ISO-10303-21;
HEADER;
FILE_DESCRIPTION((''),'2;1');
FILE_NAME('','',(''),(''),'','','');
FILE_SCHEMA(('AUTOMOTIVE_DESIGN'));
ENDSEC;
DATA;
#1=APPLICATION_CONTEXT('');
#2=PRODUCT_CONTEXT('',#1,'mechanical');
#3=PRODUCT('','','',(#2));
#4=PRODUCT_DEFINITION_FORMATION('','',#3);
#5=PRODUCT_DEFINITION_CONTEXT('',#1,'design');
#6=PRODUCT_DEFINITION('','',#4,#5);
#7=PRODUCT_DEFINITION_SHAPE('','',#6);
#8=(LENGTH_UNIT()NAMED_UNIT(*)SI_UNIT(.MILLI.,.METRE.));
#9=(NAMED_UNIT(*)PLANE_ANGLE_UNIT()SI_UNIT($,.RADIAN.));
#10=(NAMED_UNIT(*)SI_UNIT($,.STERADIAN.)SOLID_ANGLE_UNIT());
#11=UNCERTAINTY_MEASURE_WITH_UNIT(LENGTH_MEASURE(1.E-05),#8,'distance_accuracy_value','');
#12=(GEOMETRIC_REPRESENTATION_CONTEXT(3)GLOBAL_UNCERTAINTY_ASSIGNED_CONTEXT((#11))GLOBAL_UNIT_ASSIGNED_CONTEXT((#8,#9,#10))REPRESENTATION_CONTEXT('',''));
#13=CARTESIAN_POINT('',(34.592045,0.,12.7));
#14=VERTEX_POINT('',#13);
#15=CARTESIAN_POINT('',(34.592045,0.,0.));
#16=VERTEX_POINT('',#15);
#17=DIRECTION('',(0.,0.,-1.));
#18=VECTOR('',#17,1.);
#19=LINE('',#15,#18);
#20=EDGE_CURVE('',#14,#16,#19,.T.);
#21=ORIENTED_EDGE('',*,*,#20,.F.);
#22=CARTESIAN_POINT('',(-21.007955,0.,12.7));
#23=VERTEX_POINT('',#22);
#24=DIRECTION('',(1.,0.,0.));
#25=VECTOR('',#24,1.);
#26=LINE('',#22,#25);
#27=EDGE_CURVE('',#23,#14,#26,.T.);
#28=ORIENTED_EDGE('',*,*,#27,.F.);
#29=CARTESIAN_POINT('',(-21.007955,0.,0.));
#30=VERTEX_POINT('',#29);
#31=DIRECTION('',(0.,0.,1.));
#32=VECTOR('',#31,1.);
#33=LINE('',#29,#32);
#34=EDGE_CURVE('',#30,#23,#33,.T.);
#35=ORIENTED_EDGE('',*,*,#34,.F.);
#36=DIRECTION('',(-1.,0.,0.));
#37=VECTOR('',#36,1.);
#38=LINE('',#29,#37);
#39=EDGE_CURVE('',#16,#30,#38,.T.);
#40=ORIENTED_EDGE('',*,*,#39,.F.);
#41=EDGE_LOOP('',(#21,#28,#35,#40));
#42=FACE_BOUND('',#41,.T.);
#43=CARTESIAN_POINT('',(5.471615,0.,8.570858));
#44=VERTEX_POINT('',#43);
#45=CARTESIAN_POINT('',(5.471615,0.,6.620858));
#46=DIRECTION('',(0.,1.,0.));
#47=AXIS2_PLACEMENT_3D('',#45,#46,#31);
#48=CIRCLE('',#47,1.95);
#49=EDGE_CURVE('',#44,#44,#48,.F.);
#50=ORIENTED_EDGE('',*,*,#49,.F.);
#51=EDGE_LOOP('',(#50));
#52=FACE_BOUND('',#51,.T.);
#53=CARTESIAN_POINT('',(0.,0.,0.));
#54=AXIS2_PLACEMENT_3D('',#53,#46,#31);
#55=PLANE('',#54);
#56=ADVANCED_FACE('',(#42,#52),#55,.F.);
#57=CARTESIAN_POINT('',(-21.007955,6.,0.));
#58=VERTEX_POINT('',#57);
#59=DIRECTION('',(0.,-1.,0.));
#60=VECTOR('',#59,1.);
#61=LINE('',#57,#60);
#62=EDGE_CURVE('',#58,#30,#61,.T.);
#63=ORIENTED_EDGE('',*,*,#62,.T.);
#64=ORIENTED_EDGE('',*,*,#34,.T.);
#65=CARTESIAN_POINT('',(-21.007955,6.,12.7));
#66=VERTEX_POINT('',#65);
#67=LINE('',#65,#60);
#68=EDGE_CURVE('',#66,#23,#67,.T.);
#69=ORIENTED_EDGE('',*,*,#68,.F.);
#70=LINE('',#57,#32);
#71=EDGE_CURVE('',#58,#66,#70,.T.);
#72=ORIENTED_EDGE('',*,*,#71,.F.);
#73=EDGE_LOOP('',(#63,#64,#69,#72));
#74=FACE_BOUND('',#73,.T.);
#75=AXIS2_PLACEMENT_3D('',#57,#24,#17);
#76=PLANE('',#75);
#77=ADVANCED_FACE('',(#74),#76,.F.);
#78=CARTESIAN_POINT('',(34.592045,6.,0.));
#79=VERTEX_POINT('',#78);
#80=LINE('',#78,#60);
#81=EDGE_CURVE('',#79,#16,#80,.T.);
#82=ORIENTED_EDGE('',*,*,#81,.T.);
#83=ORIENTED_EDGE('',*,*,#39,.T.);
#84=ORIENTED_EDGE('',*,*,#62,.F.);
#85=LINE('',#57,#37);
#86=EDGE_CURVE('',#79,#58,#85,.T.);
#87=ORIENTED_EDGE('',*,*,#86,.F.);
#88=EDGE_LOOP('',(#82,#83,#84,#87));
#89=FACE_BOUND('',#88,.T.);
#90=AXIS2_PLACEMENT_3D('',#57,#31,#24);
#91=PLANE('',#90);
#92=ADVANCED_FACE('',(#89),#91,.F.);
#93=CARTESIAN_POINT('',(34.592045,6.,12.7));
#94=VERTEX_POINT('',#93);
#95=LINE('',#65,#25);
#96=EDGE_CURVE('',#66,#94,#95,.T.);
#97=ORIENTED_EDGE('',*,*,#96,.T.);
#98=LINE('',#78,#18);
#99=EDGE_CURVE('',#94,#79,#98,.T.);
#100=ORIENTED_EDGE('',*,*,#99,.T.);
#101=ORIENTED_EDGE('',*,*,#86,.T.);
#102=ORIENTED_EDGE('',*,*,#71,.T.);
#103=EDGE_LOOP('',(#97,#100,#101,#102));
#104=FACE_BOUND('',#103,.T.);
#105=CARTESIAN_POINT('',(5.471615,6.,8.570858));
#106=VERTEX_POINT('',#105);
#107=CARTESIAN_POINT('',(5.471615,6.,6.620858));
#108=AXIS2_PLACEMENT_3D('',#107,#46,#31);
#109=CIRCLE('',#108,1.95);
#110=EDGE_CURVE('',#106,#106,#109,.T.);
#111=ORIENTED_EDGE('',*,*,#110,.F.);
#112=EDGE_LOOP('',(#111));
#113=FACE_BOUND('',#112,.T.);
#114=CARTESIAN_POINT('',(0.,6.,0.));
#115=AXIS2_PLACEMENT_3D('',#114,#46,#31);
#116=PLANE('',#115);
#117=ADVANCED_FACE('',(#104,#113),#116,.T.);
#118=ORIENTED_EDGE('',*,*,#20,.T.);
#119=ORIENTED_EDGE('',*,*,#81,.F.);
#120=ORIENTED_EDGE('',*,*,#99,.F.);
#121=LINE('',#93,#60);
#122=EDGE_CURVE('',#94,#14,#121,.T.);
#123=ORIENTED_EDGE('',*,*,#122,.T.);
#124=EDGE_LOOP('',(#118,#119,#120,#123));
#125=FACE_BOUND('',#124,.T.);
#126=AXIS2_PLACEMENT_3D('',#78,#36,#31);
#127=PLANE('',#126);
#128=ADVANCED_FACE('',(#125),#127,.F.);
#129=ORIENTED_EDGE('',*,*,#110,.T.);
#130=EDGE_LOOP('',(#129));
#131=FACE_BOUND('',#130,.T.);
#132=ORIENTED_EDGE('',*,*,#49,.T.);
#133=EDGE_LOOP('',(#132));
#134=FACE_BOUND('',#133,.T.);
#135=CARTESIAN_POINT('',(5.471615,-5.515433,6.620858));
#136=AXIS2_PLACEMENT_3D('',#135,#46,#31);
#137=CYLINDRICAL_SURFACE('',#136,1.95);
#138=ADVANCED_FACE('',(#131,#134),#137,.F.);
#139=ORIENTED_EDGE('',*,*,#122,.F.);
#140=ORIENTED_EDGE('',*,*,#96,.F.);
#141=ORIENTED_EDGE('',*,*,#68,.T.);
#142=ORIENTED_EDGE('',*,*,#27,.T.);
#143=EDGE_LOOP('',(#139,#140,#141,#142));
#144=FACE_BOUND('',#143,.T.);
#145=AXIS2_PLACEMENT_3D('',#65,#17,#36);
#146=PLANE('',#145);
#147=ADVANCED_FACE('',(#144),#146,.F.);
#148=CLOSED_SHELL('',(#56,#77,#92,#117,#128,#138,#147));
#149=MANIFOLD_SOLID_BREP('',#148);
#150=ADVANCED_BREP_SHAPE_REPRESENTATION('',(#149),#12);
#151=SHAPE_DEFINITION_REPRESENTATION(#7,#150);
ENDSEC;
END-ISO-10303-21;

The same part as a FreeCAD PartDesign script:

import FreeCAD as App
import Part
import Sketcher

V = App.Vector


def add_polygon(sketch, points):
    """Adds a closed chain of lines whose ends are joined by coincident constraints."""
    first, n = sketch.GeometryCount, len(points)
    for a, b in zip(points, points[1:] + points[:1]):
        sketch.addGeometry(Part.LineSegment(App.Vector(*a, 0), App.Vector(*b, 0)), False)
    for i in range(n):
        sketch.addConstraint(Sketcher.Constraint("Coincident", first + i, 2, first + (i + 1) % n, 1))

doc = App.newDocument("Part")
params = doc.addObject("Spreadsheet::Sheet", "Params")
for row, (alias, value) in enumerate([
    ("sketch1_width", "55.6 mm"),
    ("sketch1_height", "12.7 mm"),
    ("pad1_length", "6 mm"),
    ("sketch2_diameter", "3.9 mm"),
    ("pocket1_length", "6 mm"),
], start=1):
    params.set(f"A{row}", alias)
    params.set(f"B{row}", "=" + value)
    params.setAlias(f"B{row}", alias)

body = doc.addObject("PartDesign::Body", "Body")

# Sketch on XZ plane
sketch1 = body.newObject("Sketcher::SketchObject", "Sketch")
sketch1.AttachmentSupport = (doc.getObject("XZ_Plane"), [""])
sketch1.MapMode = "FlatFace"
add_polygon(sketch1, [(-21, 0), (-21, 13), (35, 13), (35, 0)])  # lines 0-3
sketch1.addConstraint([
    Sketcher.Constraint("Vertical", 0),
    Sketcher.Constraint("Horizontal", 1),
    Sketcher.Constraint("Vertical", 2),
    Sketcher.Constraint("Horizontal", 3),
    Sketcher.Constraint("PointOnObject", 2, 2, -1),
    Sketcher.Constraint("DistanceX", 1, 1, 1, 2, 55.6),
    Sketcher.Constraint("DistanceY", 0, 1, 0, 2, 12.7),
    Sketcher.Constraint("DistanceX", 0, 2, -1, 1, 21.007955),
])
sketch1.setExpression("Constraints[9]", "Params.sketch1_width")
sketch1.setExpression("Constraints[10]", "Params.sketch1_height")
pad1 = body.newObject("PartDesign::Pad", "Pad")
pad1.Profile = sketch1
pad1.setExpression("Length", "Params.pad1_length")
pad1.Reversed = True

# Sketch on XZ plane
sketch2 = body.newObject("Sketcher::SketchObject", "Sketch001")
sketch2.AttachmentSupport = (doc.getObject("XZ_Plane"), [""])
sketch2.MapMode = "FlatFace"
sketch2.AttachmentOffset = App.Placement(V(0, 0, -6), App.Rotation())
sketch2.addGeometry(Part.Circle(V(5.5, 6.6, 0), V(0, 0, 1), 1.9), False)
sketch2.addConstraint([
    Sketcher.Constraint("Diameter", 0, 3.9),
    Sketcher.Constraint("DistanceX", -1, 1, 0, 3, 5.471615),
    Sketcher.Constraint("DistanceY", -1, 1, 0, 3, 6.620858),
])
sketch2.setExpression("Constraints[0]", "Params.sketch2_diameter")
pocket1 = body.newObject("PartDesign::Pocket", "Pocket")
pocket1.Profile = sketch2
pocket1.setExpression("Length", "Params.pocket1_length")
pocket1.Reversed = True

doc.recompute()
